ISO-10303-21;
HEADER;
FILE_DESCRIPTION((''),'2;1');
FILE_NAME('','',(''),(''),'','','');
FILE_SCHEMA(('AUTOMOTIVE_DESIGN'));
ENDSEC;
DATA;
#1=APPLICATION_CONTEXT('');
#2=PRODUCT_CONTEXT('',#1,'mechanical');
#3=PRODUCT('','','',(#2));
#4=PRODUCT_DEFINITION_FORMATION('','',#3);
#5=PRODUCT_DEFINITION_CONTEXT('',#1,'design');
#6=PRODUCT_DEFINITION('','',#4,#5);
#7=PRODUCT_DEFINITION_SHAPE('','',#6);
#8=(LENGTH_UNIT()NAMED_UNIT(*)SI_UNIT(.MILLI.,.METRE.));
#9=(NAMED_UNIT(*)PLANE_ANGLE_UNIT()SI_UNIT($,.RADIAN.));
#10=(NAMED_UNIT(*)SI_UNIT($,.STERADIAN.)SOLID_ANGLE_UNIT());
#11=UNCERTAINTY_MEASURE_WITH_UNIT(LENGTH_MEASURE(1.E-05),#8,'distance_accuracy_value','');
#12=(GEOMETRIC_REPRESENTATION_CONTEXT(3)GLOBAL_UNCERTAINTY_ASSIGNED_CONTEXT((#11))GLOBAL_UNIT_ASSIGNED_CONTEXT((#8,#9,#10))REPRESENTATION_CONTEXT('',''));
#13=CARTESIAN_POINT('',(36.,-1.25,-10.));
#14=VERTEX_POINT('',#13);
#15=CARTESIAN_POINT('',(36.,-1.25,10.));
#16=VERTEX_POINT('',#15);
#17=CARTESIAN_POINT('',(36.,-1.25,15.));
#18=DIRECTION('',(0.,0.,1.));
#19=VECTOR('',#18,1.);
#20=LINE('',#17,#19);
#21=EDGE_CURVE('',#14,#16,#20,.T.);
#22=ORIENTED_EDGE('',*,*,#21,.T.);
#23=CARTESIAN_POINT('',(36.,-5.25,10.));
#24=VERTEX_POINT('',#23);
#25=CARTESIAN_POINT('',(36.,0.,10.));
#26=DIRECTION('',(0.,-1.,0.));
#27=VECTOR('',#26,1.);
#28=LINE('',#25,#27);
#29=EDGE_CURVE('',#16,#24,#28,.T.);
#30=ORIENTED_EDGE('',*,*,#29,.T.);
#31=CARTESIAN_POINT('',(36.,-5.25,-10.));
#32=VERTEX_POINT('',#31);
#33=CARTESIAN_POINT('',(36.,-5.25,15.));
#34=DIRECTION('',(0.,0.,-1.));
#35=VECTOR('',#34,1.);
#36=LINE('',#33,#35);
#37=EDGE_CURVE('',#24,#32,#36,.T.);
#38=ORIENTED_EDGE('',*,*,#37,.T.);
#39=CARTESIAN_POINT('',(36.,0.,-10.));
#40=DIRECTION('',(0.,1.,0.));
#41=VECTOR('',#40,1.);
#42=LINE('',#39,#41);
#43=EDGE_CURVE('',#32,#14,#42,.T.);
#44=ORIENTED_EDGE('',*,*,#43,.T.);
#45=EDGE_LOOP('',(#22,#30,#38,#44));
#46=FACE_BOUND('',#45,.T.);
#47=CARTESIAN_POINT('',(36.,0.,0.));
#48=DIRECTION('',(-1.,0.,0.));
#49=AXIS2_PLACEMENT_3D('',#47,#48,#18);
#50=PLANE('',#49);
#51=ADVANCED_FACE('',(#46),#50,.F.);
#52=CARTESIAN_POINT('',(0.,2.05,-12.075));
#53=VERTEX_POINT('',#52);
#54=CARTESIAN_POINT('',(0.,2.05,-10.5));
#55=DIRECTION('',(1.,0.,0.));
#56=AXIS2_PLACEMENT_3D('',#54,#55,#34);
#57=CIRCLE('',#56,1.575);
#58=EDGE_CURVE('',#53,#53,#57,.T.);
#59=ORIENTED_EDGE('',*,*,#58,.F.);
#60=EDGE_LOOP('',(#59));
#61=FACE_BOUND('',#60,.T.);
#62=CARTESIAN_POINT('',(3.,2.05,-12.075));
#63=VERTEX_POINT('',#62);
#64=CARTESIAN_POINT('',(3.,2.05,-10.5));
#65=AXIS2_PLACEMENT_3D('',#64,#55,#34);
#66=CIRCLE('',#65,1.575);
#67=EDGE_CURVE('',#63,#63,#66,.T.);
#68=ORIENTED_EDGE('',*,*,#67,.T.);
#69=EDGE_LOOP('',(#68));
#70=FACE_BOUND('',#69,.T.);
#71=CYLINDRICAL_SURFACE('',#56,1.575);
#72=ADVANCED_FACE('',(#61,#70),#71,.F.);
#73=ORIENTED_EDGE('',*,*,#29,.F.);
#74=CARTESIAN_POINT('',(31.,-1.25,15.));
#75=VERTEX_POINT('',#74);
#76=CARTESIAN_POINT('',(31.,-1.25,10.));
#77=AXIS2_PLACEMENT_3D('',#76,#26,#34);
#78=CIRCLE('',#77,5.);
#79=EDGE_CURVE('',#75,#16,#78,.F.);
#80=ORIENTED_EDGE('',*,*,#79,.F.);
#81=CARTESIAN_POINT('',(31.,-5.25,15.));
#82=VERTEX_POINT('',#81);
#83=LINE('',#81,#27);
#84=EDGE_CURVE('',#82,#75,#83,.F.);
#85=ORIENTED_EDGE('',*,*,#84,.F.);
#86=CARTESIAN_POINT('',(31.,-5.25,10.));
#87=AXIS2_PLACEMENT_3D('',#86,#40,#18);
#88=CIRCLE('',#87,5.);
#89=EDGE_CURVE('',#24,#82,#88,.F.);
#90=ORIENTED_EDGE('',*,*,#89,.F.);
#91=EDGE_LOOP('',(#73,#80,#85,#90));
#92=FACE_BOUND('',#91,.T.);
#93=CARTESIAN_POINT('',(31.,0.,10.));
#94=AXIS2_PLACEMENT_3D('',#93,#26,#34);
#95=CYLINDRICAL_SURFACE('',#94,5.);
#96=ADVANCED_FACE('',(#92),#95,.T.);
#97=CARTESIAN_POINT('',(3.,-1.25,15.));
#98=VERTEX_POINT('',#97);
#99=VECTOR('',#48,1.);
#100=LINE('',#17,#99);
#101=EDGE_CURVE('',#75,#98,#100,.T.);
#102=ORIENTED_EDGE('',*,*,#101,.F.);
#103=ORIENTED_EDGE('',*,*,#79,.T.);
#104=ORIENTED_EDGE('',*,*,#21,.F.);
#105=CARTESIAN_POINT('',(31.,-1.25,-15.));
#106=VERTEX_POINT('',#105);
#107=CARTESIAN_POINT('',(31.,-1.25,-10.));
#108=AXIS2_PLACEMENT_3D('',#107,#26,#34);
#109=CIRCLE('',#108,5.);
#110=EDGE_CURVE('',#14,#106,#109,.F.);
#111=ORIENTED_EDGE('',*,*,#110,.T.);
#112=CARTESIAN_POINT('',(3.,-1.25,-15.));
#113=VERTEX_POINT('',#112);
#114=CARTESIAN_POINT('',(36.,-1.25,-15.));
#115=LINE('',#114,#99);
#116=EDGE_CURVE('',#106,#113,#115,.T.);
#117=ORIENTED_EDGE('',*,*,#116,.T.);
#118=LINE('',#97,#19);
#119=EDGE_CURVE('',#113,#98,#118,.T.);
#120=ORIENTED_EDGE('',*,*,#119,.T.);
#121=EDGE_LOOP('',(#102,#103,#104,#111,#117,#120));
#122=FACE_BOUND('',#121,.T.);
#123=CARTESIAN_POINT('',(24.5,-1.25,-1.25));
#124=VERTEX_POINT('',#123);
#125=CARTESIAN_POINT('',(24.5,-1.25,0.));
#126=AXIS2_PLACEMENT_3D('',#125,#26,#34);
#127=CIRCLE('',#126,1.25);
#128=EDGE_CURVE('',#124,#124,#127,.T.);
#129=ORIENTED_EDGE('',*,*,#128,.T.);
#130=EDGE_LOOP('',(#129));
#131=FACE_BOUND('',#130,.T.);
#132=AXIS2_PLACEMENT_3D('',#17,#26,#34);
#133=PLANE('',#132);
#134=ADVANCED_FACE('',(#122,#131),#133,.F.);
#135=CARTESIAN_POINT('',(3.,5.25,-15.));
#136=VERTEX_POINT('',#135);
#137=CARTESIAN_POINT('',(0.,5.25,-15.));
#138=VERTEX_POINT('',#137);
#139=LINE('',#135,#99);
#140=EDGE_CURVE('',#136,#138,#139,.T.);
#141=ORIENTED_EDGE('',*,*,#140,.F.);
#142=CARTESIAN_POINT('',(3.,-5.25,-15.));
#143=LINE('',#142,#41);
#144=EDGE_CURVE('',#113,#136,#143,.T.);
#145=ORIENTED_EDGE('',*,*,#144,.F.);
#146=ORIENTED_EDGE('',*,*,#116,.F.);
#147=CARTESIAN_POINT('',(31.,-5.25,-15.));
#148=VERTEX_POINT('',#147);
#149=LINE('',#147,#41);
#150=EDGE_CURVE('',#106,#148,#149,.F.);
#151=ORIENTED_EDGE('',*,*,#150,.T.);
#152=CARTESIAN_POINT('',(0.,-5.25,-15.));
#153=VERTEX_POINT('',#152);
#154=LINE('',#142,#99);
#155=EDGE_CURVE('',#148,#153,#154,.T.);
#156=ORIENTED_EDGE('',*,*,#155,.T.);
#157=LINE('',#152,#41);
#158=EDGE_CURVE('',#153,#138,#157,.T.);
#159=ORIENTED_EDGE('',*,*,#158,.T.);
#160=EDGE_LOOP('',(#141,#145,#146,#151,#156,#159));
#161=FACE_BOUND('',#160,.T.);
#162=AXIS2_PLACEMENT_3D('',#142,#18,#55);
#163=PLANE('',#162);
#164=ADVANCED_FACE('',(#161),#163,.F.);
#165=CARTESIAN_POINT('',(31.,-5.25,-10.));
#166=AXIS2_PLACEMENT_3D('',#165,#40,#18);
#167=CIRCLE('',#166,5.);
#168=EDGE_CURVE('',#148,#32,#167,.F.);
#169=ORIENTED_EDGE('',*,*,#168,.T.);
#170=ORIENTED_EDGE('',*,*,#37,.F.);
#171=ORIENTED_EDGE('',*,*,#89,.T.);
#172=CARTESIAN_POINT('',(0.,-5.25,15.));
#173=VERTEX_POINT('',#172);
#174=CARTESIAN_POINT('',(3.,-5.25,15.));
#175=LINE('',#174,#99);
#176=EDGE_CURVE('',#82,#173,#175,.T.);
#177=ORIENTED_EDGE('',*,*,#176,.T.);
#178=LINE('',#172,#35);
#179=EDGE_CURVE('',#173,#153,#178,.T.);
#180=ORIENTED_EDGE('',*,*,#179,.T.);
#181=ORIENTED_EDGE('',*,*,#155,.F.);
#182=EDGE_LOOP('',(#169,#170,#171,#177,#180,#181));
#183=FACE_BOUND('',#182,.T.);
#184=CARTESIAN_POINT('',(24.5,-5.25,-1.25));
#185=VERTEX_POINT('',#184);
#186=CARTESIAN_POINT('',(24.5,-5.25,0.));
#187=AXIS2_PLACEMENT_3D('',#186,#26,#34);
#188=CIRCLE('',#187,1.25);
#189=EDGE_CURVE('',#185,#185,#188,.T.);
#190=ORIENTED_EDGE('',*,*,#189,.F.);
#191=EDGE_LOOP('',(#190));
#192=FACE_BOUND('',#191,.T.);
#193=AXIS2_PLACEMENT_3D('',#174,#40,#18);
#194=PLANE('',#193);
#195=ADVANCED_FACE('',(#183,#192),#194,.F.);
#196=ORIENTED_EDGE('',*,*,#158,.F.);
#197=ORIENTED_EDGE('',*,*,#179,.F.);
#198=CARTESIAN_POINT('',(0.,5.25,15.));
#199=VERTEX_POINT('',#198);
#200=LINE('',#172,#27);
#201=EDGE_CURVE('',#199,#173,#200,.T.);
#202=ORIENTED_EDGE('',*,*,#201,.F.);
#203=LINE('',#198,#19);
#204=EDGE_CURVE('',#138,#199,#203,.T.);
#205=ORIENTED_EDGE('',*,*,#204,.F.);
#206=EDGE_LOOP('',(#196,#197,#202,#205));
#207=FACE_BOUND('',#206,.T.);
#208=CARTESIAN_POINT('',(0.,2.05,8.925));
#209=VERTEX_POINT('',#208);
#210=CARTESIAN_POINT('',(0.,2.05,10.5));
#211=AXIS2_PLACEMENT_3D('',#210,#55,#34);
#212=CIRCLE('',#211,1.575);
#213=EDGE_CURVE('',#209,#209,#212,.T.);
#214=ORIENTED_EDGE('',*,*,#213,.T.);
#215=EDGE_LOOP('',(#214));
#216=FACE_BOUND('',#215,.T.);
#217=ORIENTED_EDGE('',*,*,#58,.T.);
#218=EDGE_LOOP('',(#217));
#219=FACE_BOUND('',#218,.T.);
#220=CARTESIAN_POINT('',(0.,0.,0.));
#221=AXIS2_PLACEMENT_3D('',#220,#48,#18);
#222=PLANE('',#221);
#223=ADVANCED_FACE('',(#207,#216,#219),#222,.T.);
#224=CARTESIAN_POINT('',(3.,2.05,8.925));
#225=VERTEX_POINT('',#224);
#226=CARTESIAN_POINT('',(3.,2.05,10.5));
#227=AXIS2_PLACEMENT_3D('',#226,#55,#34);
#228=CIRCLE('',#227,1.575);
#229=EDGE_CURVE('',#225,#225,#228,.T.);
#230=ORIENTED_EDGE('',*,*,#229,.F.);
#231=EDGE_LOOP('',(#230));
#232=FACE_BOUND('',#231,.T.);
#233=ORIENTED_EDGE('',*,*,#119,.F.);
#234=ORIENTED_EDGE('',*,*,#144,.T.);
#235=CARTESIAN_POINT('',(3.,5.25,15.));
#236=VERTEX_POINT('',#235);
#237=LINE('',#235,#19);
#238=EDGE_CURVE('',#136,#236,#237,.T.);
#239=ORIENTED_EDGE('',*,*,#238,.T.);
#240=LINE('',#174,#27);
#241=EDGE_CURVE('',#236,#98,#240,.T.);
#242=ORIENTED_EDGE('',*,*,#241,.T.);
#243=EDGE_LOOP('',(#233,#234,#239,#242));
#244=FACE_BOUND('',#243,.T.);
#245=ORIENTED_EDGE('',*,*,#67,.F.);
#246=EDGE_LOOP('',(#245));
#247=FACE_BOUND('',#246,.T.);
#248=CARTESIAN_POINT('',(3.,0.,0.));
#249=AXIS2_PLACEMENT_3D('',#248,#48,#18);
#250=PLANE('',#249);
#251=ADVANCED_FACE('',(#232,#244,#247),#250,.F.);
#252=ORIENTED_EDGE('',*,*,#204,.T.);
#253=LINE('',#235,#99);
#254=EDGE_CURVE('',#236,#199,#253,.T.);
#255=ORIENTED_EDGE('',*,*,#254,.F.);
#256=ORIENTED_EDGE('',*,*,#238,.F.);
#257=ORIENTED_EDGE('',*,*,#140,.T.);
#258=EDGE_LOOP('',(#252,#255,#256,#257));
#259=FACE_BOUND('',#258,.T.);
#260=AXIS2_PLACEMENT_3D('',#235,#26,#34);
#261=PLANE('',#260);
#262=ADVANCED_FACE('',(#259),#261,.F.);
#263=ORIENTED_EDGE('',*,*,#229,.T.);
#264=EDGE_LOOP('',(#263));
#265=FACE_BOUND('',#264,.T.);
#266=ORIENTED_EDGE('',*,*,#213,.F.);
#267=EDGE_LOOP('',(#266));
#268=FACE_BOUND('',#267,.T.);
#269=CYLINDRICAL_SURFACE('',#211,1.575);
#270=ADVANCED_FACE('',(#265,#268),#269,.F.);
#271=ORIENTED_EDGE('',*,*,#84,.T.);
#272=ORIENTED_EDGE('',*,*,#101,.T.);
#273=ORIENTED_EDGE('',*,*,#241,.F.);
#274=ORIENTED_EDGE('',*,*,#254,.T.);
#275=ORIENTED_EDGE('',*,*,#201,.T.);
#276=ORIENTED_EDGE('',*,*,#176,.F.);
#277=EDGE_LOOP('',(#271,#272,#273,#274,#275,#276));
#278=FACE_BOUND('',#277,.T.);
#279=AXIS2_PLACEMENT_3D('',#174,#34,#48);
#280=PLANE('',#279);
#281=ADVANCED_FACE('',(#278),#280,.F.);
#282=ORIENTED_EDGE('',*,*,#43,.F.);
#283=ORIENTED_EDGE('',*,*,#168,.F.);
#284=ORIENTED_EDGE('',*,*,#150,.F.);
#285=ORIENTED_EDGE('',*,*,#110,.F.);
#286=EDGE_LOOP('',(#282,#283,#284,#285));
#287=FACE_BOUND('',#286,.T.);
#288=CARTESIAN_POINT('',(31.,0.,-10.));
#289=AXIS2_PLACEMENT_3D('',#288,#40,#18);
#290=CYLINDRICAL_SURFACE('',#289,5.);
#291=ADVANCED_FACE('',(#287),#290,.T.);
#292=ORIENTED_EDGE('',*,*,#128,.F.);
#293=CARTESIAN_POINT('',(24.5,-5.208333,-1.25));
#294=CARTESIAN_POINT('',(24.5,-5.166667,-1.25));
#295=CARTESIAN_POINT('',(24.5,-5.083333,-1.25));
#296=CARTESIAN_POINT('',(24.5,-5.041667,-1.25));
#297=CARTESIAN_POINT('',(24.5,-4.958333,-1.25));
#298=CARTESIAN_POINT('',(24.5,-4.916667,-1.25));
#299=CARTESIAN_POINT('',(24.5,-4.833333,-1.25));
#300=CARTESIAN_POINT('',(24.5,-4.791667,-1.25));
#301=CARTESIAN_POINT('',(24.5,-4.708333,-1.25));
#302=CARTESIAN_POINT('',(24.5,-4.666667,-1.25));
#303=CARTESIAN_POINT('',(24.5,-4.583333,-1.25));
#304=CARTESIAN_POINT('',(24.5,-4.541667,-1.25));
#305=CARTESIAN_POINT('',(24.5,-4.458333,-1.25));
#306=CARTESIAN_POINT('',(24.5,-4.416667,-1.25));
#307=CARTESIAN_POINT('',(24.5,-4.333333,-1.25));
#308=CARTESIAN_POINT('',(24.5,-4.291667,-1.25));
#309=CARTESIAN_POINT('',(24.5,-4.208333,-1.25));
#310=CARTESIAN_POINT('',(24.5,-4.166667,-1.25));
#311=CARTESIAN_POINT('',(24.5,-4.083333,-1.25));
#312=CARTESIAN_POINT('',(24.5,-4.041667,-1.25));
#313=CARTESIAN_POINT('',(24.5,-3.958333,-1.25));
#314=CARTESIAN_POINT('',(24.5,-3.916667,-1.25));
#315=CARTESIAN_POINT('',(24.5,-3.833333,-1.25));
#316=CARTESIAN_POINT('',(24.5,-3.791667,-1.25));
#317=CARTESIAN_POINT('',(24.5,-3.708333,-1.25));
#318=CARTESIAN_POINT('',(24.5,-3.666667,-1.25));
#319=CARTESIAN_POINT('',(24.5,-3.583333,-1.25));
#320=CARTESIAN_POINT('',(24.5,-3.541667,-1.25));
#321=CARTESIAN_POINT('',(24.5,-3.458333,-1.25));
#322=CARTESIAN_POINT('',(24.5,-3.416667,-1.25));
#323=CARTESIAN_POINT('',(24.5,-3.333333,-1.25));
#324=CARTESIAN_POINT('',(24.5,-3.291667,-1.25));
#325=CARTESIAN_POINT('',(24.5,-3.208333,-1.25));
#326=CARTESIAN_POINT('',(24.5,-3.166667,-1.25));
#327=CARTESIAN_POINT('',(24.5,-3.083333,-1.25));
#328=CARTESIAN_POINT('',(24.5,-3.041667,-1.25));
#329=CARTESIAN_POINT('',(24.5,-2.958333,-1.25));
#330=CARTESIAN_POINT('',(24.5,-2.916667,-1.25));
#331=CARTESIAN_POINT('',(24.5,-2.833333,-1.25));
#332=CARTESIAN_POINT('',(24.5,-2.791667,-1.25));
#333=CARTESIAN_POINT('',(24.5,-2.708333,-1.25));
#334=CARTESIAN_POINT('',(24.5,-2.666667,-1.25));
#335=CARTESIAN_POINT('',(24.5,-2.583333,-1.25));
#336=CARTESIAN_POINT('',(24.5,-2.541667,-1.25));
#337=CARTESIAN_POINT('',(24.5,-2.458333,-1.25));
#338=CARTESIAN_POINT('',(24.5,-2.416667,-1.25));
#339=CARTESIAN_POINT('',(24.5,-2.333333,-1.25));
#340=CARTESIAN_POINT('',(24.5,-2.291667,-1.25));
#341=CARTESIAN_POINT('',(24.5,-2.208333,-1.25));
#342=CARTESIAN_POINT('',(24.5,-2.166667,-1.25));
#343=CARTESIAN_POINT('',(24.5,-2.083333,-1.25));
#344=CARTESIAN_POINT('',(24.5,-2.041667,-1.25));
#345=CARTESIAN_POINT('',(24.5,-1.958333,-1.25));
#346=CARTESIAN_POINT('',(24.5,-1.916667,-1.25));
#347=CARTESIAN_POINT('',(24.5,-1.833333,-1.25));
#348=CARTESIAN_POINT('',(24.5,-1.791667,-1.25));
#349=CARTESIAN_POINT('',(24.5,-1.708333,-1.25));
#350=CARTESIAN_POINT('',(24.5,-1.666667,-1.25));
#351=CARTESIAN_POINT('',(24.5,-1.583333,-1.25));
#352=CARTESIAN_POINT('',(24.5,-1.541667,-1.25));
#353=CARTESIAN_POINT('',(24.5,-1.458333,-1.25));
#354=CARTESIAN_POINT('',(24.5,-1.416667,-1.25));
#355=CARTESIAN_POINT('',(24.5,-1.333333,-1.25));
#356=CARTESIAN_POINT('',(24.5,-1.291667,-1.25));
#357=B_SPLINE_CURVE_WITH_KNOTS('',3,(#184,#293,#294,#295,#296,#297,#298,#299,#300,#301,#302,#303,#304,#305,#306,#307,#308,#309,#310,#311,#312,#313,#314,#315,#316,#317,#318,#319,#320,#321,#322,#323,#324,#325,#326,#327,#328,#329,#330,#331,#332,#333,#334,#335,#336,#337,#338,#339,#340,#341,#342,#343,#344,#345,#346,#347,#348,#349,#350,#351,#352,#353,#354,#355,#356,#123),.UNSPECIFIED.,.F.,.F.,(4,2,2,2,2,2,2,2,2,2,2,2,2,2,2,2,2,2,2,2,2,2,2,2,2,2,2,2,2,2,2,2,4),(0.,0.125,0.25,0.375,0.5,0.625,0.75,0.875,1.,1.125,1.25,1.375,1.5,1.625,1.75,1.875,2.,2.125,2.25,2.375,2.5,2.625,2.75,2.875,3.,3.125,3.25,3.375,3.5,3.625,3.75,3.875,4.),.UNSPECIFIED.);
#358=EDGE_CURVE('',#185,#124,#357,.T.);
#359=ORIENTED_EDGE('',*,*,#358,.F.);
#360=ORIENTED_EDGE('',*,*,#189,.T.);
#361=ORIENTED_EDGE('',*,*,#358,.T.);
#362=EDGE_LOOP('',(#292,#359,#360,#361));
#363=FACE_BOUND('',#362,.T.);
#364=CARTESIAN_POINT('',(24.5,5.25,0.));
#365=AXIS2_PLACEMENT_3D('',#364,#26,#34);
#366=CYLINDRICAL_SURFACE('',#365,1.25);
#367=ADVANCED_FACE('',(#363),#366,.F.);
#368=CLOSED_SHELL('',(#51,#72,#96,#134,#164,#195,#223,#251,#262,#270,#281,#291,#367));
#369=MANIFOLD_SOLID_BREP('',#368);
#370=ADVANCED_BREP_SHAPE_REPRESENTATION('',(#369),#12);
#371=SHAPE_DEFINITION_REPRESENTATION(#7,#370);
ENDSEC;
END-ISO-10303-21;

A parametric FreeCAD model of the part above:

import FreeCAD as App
import Part
import Sketcher


def edges_at(feature, points):
    """Names of the edges that pass closest to the given points."""
    edges = feature.Shape.Edges
    near = lambda p: min(range(len(edges)), key=lambda i: edges[i].distToShape(Part.Vertex(*p))[0])
    return sorted({f"Edge{near(p) + 1}" for p in points})

doc = App.newDocument("Part")
body = doc.addObject("PartDesign::Body", "Body")

# Sketch on YZ plane
sketch1 = body.newObject("Sketcher::SketchObject", "Sketch")
sketch1.AttachmentSupport = (doc.getObject("YZ_Plane"), [""])
sketch1.MapMode = "FlatFace"
sketch1.addGeometry([
    Part.LineSegment(App.Vector(5.25, 15, 0), App.Vector(-5.25, 15, 0)),
    Part.LineSegment(App.Vector(-5.25, 15, 0), App.Vector(-5.25, -15, 0)),
    Part.LineSegment(App.Vector(-5.25, -15, 0), App.Vector(5.25, -15, 0)),
    Part.LineSegment(App.Vector(5.25, -15, 0), App.Vector(5.25, 15, 0)),
], False)
sketch1.addConstraint([
    Sketcher.Constraint("Coincident", 0, 2, 1, 1),
    Sketcher.Constraint("Coincident", 1, 2, 2, 1),
    Sketcher.Constraint("Coincident", 2, 2, 3, 1),
    Sketcher.Constraint("Coincident", 3, 2, 0, 1),
    Sketcher.Constraint("Horizontal", 0),
    Sketcher.Constraint("Vertical", 1),
    Sketcher.Constraint("Horizontal", 2),
    Sketcher.Constraint("Vertical", 3),
    Sketcher.Constraint("Symmetric", 0, 2, 2, 2, -1, 1),
    Sketcher.Constraint("DistanceY", 1, 2, 1, 1, 30.0),
    Sketcher.Constraint("DistanceX", 0, 2, 0, 1, 10.5),
])
pad1 = body.newObject("PartDesign::Pad", "Pad")
pad1.Profile = sketch1
pad1.Length = 3

# Sketch on YZ plane
sketch2 = body.newObject("Sketcher::SketchObject", "Sketch001")
sketch2.AttachmentSupport = (doc.getObject("YZ_Plane"), [""])
sketch2.MapMode = "FlatFace"
sketch2.AttachmentOffset = App.Placement(App.Vector(0, 0, 3), App.Rotation())
sketch2.addGeometry([
    Part.LineSegment(App.Vector(-1.25, 15, 0), App.Vector(-5.25, 15, 0)),
    Part.LineSegment(App.Vector(-5.25, 15, 0), App.Vector(-5.25, -15, 0)),
    Part.LineSegment(App.Vector(-5.25, -15, 0), App.Vector(-1.25, -15, 0)),
    Part.LineSegment(App.Vector(-1.25, -15, 0), App.Vector(-1.25, 15, 0)),
], False)
sketch2.addConstraint([
    Sketcher.Constraint("Coincident", 0, 2, 1, 1),
    Sketcher.Constraint("Coincident", 1, 2, 2, 1),
    Sketcher.Constraint("Coincident", 2, 2, 3, 1),
    Sketcher.Constraint("Coincident", 3, 2, 0, 1),
    Sketcher.Constraint("Horizontal", 0),
    Sketcher.Constraint("Vertical", 1),
    Sketcher.Constraint("Horizontal", 2),
    Sketcher.Constraint("Vertical", 3),
    Sketcher.Constraint("DistanceX", 0, 2, 0, 1, 4.0),
    Sketcher.Constraint("DistanceY", 1, 2, 1, 1, 30.0),
    Sketcher.Constraint("DistanceY", -1, 1, 0, 2, 15.0),
    Sketcher.Constraint("DistanceX", 0, 2, -1, 1, 5.25),
])
pad2 = body.newObject("PartDesign::Pad", "Pad001")
pad2.Profile = sketch2
pad2.Length = 33
doc.recompute()

fillet = body.newObject("PartDesign::Fillet", "Fillet")
fillet.Base = (pad2, edges_at(pad2, [(36, -3.25, 15), (36, -3.25, -15)]))
fillet.Radius = 5

# Sketch on YZ plane
sketch3 = body.newObject("Sketcher::SketchObject", "Sketch002")
sketch3.AttachmentSupport = (doc.getObject("YZ_Plane"), [""])
sketch3.MapMode = "FlatFace"
sketch3.AttachmentOffset = App.Placement(App.Vector(0, 0, 3), App.Rotation())
sketch3.addGeometry(Part.Circle(App.Vector(2.05, 10.5, 0), App.Vector(0, 0, 1), 1.575), False)
sketch3.addConstraint([
    Sketcher.Constraint("Diameter", 0, 3.15),
    Sketcher.Constraint("DistanceY", -1, 1, 0, 3, 10.5),
    Sketcher.Constraint("DistanceX", -1, 1, 0, 3, 2.05),
])
pocket1 = body.newObject("PartDesign::Pocket", "Pocket")
pocket1.Profile = sketch3
pocket1.Type = "ThroughAll"

# Sketch on YZ plane
sketch4 = body.newObject("Sketcher::SketchObject", "Sketch003")
sketch4.AttachmentSupport = (doc.getObject("YZ_Plane"), [""])
sketch4.MapMode = "FlatFace"
sketch4.AttachmentOffset = App.Placement(App.Vector(0, 0, 3), App.Rotation())
sketch4.addGeometry(Part.Circle(App.Vector(2.05, -10.5, 0), App.Vector(0, 0, 1), 1.575), False)
sketch4.addConstraint([
    Sketcher.Constraint("Diameter", 0, 3.15),
    Sketcher.Constraint("DistanceY", 0, 3, -1, 1, 10.5),
    Sketcher.Constraint("DistanceX", -1, 1, 0, 3, 2.05),
])
pocket2 = body.newObject("PartDesign::Pocket", "Pocket001")
pocket2.Profile = sketch4
pocket2.Type = "ThroughAll"

# Sketch on XZ plane
sketch5 = body.newObject("Sketcher::SketchObject", "Sketch004")
sketch5.AttachmentSupport = (doc.getObject("XZ_Plane"), [""])
sketch5.MapMode = "FlatFace"
sketch5.AttachmentOffset = App.Placement(App.Vector(0, 0, 5.25), App.Rotation())
sketch5.addGeometry(Part.Circle(App.Vector(24.5, 0, 0), App.Vector(0, 0, 1), 1.25), False)
sketch5.addConstraint([
    Sketcher.Constraint("PointOnObject", 0, 3, -1),
    Sketcher.Constraint("Diameter", 0, 2.5),
    Sketcher.Constraint("DistanceX", -1, 1, 0, 3, 24.5),
])
pocket3 = body.newObject("PartDesign::Pocket", "Pocket002")
pocket3.Profile = sketch5
pocket3.Type = "ThroughAll"

doc.recompute()
